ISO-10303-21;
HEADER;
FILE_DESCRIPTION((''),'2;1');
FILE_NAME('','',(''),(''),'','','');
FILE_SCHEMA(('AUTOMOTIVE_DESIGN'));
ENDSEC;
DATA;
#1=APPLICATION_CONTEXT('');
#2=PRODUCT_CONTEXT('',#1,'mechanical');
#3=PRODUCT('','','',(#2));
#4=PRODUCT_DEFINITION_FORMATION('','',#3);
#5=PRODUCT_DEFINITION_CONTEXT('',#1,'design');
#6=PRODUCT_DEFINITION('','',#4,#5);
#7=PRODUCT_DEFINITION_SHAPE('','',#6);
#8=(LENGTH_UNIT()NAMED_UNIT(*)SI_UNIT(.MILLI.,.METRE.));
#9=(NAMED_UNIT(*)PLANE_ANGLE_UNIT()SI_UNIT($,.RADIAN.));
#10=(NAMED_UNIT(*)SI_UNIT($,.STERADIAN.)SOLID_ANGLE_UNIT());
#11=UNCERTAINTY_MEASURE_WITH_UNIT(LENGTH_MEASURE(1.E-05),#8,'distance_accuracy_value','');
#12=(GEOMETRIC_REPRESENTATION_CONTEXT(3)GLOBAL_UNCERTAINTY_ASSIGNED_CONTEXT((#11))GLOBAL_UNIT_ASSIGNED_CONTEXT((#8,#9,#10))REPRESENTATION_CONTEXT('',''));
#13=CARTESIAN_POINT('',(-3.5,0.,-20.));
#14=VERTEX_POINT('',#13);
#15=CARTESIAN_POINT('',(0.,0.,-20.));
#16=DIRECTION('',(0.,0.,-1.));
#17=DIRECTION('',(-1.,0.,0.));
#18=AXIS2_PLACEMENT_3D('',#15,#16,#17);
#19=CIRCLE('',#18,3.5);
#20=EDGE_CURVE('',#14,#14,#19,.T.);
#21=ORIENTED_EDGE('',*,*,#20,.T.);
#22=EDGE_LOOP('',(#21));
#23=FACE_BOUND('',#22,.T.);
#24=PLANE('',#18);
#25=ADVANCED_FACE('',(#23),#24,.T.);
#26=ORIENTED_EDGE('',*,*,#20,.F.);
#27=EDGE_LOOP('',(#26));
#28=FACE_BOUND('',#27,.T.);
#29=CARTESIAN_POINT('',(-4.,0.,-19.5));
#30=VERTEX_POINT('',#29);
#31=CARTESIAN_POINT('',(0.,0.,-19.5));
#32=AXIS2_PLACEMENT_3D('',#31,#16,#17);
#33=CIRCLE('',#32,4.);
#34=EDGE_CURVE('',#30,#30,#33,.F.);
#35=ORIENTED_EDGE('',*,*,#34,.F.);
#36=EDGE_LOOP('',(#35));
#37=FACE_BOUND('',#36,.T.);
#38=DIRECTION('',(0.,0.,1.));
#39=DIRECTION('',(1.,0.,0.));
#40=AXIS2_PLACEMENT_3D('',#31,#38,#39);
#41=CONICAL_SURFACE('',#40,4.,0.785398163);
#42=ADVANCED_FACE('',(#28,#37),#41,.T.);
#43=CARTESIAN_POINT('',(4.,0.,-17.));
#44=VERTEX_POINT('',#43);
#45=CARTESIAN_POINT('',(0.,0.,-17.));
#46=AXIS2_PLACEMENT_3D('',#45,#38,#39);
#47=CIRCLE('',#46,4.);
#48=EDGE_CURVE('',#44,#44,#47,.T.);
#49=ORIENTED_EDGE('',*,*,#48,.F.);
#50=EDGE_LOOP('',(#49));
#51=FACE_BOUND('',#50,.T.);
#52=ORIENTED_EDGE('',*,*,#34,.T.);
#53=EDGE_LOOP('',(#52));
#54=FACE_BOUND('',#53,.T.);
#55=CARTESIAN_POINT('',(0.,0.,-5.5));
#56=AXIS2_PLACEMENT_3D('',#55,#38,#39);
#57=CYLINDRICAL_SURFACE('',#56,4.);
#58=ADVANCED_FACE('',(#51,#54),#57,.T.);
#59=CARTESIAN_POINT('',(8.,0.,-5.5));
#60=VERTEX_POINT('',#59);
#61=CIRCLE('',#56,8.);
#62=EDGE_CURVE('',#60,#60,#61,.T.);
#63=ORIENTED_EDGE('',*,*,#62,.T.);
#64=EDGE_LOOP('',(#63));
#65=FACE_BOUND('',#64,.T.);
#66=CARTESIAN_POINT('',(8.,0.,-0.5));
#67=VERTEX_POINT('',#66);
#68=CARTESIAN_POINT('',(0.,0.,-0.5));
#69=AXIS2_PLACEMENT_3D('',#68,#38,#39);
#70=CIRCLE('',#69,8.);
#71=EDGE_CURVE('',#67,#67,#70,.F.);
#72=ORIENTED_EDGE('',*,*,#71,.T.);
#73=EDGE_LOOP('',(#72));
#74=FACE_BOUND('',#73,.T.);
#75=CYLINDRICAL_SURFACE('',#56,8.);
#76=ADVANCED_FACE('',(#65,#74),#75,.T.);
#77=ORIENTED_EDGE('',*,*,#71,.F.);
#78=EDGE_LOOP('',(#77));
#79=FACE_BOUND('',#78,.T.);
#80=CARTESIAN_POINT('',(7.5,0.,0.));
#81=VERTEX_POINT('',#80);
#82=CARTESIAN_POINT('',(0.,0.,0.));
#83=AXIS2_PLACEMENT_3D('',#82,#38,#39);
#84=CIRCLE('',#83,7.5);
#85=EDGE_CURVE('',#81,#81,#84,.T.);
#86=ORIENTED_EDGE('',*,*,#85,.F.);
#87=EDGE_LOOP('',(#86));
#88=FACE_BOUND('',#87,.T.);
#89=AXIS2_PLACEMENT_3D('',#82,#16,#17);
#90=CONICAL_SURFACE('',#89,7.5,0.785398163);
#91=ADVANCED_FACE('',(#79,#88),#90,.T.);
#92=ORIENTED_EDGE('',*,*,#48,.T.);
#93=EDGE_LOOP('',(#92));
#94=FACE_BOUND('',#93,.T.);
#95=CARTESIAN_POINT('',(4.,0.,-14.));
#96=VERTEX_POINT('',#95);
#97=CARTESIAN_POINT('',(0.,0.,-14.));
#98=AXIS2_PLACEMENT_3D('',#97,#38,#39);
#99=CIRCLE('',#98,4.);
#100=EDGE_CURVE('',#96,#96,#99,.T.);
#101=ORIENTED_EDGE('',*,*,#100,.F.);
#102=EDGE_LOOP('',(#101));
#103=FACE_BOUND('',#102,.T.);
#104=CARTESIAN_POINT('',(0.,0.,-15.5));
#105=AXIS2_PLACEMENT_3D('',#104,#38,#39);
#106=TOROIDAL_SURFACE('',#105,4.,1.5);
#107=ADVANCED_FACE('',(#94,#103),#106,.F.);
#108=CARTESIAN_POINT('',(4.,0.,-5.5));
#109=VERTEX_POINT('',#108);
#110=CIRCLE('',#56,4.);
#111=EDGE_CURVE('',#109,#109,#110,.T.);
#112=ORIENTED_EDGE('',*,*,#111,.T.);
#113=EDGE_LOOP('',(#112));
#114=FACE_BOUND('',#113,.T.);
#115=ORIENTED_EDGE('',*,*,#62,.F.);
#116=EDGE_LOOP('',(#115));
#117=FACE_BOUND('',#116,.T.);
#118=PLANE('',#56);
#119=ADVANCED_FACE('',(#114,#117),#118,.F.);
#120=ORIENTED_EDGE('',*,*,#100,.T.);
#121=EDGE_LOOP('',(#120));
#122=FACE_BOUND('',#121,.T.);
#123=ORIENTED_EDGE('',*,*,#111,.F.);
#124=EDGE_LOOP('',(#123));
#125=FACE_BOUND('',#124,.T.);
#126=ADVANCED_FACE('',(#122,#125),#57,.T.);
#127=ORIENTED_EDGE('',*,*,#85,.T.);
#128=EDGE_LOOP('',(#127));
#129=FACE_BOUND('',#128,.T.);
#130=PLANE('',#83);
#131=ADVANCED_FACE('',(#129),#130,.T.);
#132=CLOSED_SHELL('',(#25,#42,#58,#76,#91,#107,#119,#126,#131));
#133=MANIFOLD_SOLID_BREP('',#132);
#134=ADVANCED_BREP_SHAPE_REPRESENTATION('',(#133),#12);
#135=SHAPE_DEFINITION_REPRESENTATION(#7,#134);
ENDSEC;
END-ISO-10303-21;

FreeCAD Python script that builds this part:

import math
import FreeCAD as App
import Part
import Sketcher

V = App.Vector
Q = App.Units.Quantity


def edges_at(feature, points):
    """Names of the edges that pass closest to the given points."""
    edges = feature.Shape.Edges
    near = lambda p: min(range(len(edges)), key=lambda i: edges[i].distToShape(Part.Vertex(*p))[0])
    return sorted({f"Edge{near(p) + 1}" for p in points})

doc = App.newDocument("Part")
body = doc.addObject("PartDesign::Body", "Body")

# Sketch on YZ plane
sketch1 = body.newObject("Sketcher::SketchObject", "Sketch")
sketch1.AttachmentSupport = (doc.getObject("YZ_Plane"), [""])
sketch1.MapMode = "FlatFace"
sketch1.addGeometry([
    Part.LineSegment(V(8, 0, 0), V(0, 0, 0)),  # 0
    Part.LineSegment(V(0, 0, 0), V(0, -20, 0)),  # 1
    Part.LineSegment(V(0, -20, 0), V(4, -20, 0)),  # 2
    Part.LineSegment(V(4, -20, 0), V(4, -17, 0)),  # 3
    Part.ArcOfCircle(Part.Circle(V(4, -15.5, 0), V(0, 0, 1), 1.5), math.radians(90), math.radians(270)),  # 4
    Part.LineSegment(V(4, -14, 0), V(4, -5.5, 0)),  # 5
    Part.LineSegment(V(4, -5.5, 0), V(8, -5.5, 0)),  # 6
    Part.LineSegment(V(8, -5.5, 0), V(8, 0, 0)),  # 7
], False)
sketch1.addConstraint([
    Sketcher.Constraint("Coincident", 0, 2, 1, 1),
    Sketcher.Constraint("Coincident", 1, 2, 2, 1),
    Sketcher.Constraint("Coincident", 2, 2, 3, 1),
    Sketcher.Constraint("Coincident", 3, 2, 4, 2),
    Sketcher.Constraint("Coincident", 4, 1, 5, 1),
    Sketcher.Constraint("Coincident", 5, 2, 6, 1),
    Sketcher.Constraint("Coincident", 6, 2, 7, 1),
    Sketcher.Constraint("Coincident", 7, 2, 0, 1),
    Sketcher.Constraint("Horizontal", 0),
    Sketcher.Constraint("Vertical", 1),
    Sketcher.Constraint("Horizontal", 2),
    Sketcher.Constraint("Vertical", 3),
    Sketcher.Constraint("Vertical", 5),
    Sketcher.Constraint("Horizontal", 6),
    Sketcher.Constraint("Vertical", 7),
    Sketcher.Constraint("Coincident", 0, 2, -1, 1),
    Sketcher.Constraint("Vertical", 4, 3, 2, 2),
    Sketcher.Constraint("Vertical", 3, 2, 4, 1),
    Sketcher.Constraint("Equal", 2, 6),
    Sketcher.Constraint("Radius", 4, Q("1.5 mm")),
    Sketcher.Constraint("DistanceX", 0, 2, 0, 1, Q("8 mm")),
    Sketcher.Constraint("DistanceY", 1, 2, 1, 1, Q("20 mm")),
    Sketcher.Constraint("DistanceY", 3, 1, 3, 2, Q("3 mm")),
    Sketcher.Constraint("DistanceY", 5, 1, 5, 2, Q("8.5 mm")),
])
revolution = body.newObject("PartDesign::Revolution", "Revolution")
revolution.Profile = sketch1
revolution.ReferenceAxis = (sketch1, ["V_Axis"])
revolution.Angle = 360
doc.recompute()

chamfer = body.newObject("PartDesign::Chamfer", "Chamfer")
chamfer.Base = (revolution, edges_at(revolution, [(-8, 0, 0)]))
chamfer.Size = 0.5
doc.recompute()

chamfer2 = body.newObject("PartDesign::Chamfer", "Chamfer001")
chamfer2.Base = (chamfer, edges_at(chamfer, [(-4, 0, -20)]))
chamfer2.Size = 0.5

doc.recompute()
